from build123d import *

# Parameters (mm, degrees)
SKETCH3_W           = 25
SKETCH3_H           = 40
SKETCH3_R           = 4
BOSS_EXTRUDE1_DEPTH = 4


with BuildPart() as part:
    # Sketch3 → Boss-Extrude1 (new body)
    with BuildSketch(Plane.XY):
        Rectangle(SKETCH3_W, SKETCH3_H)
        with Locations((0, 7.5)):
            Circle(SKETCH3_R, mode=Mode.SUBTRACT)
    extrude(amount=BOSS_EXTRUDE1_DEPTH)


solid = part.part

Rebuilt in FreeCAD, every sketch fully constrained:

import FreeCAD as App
import Part
import Sketcher
Q = App.Units.Quantity


def add_polygon(sketch, points):
    """Adds a closed chain of lines whose ends are joined by coincident constraints."""
    first, n = sketch.GeometryCount, len(points)
    for a, b in zip(points, points[1:] + points[:1]):
        sketch.addGeometry(Part.LineSegment(App.Vector(*a, 0), App.Vector(*b, 0)), False)
    for i in range(n):
        sketch.addConstraint(Sketcher.Constraint("Coincident", first + i, 2, first + (i + 1) % n, 1))

doc = App.newDocument("Part")
body = doc.addObject("PartDesign::Body", "Body")

# Sketch on XY plane
sketch1 = body.newObject("Sketcher::SketchObject", "Sketch")
sketch1.AttachmentSupport = (doc.getObject("XY_Plane"), [""])
sketch1.MapMode = "FlatFace"
add_polygon(sketch1, [(-12.5, 20), (-12.5, -20), (12.5, -20), (12.5, 20)])  # lines 0-3
sketch1.addGeometry(Part.Circle(App.Vector(0, 7.5, 0), App.Vector(0, 0, 1), 4), False)  # 4
sketch1.addConstraint(Sketcher.Constraint("Vertical", 0))
sketch1.addConstraint(Sketcher.Constraint("Horizontal", 1))
sketch1.addConstraint(Sketcher.Constraint("Vertical", 2))
sketch1.addConstraint(Sketcher.Constraint("Horizontal", 3))
sketch1.addConstraint(Sketcher.Constraint("Symmetric", 0, 2, 2, 2, -1, 1))
sketch1.addConstraint(Sketcher.Constraint("PointOnObject", 4, 3, -2))
sketch1.addConstraint(Sketcher.Constraint("Diameter", 4, Q("8 mm")))
sketch1.addConstraint(Sketcher.Constraint("DistanceX", 1, 1, 1, 2, Q("25 mm")))
sketch1.addConstraint(Sketcher.Constraint("DistanceY", 0, 2, 0, 1, Q("40 mm")))
sketch1.addConstraint(Sketcher.Constraint("DistanceY", -1, 1, 4, 3, Q("7.5 mm")))
pad1 = body.newObject("PartDesign::Pad", "Pad")
pad1.Profile = sketch1
pad1.Length = 4

doc.recompute()
